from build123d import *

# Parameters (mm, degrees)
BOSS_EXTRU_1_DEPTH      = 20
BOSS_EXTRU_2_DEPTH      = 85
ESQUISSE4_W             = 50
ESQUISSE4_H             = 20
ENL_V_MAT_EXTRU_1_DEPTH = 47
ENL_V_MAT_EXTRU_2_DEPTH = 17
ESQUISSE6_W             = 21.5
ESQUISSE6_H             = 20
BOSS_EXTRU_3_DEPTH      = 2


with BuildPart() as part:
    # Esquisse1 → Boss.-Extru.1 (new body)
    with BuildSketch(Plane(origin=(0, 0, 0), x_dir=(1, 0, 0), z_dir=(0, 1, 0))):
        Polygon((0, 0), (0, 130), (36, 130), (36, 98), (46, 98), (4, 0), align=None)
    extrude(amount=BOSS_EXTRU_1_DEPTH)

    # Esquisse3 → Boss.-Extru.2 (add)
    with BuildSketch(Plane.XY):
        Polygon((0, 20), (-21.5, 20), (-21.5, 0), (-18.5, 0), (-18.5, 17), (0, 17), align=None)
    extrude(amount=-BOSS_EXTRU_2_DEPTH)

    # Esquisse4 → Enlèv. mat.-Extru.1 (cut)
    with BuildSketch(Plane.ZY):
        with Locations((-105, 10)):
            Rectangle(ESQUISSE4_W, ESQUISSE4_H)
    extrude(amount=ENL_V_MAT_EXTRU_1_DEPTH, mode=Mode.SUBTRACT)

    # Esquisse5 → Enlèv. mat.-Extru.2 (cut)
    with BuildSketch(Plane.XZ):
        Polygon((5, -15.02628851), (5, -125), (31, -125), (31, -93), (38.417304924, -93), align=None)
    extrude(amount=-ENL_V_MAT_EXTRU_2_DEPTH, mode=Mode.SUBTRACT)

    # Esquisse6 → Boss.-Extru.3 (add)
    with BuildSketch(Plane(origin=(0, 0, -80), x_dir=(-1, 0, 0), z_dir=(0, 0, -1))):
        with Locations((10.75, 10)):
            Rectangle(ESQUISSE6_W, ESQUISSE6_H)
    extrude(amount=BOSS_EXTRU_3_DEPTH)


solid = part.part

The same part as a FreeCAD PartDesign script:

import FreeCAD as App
import Part
import Sketcher

V = App.Vector
Q = App.Units.Quantity


def add_polygon(sketch, points):
    """Adds a closed chain of lines whose ends are joined by coincident constraints."""
    first, n = sketch.GeometryCount, len(points)
    for a, b in zip(points, points[1:] + points[:1]):
        sketch.addGeometry(Part.LineSegment(App.Vector(*a, 0), App.Vector(*b, 0)), False)
    for i in range(n):
        sketch.addConstraint(Sketcher.Constraint("Coincident", first + i, 2, first + (i + 1) % n, 1))

doc = App.newDocument("Part")
body = doc.addObject("PartDesign::Body", "Body")

sketch1 = doc.addObject("Sketcher::SketchObject", "Sketch")
body.addObject(sketch1)
sketch1.AttachmentSupport = (doc.XZ_Plane, [""])
sketch1.MapMode = "FlatFace"
add_polygon(sketch1, [(0, -130), (0, 0), (4, 0), (46, -98), (36, -98), (36, -130)])
sketch1.addConstraint(Sketcher.Constraint("Vertical", 0))
sketch1.addConstraint(Sketcher.Constraint("Horizontal", 1))
sketch1.addConstraint(Sketcher.Constraint("Horizontal", 3))
sketch1.addConstraint(Sketcher.Constraint("Vertical", 4))
sketch1.addConstraint(Sketcher.Constraint("Horizontal", 5))
sketch1.addConstraint(Sketcher.Constraint("Coincident", 0, 2, -1, 1))
sketch1.addConstraint(Sketcher.Constraint("DistanceX", 1, 1, 1, 2, Q("4 mm")))
sketch1.addConstraint(Sketcher.Constraint("DistanceX", 3, 2, 3, 1, Q("10 mm")))
sketch1.addConstraint(Sketcher.Constraint("DistanceX", 5, 2, 5, 1, Q("36 mm")))
sketch1.addConstraint(Sketcher.Constraint("DistanceY", 0, 1, 0, 2, Q("130 mm")))
sketch1.addConstraint(Sketcher.Constraint("DistanceY", 4, 2, 4, 1, Q("32 mm")))
pad1 = doc.addObject("PartDesign::Pad", "Pad")
body.addObject(pad1)
pad1.Profile = sketch1
pad1.Length = 20
pad1.Reversed = True

sketch2 = doc.addObject("Sketcher::SketchObject", "Sketch001")
body.addObject(sketch2)
sketch2.AttachmentSupport = (doc.XY_Plane, [""])
sketch2.MapMode = "FlatFace"
add_polygon(sketch2, [(0, 20), (-21.5, 20), (-21.5, 0), (-18.5, 0), (-18.5, 17), (0, 17)])
sketch2.addConstraint(Sketcher.Constraint("Horizontal", 0))
sketch2.addConstraint(Sketcher.Constraint("Vertical", 1))
sketch2.addConstraint(Sketcher.Constraint("Horizontal", 2))
sketch2.addConstraint(Sketcher.Constraint("Vertical", 3))
sketch2.addConstraint(Sketcher.Constraint("Horizontal", 4))
sketch2.addConstraint(Sketcher.Constraint("Vertical", 5))
sketch2.addConstraint(Sketcher.Constraint("PointOnObject", 1, 2, -1))
sketch2.addConstraint(Sketcher.Constraint("PointOnObject", 4, 2, -2))
sketch2.addConstraint(Sketcher.Constraint("Equal", 2, 5))
sketch2.addConstraint(Sketcher.Constraint("DistanceX", 2, 1, 2, 2, Q("3 mm")))
sketch2.addConstraint(Sketcher.Constraint("DistanceY", 1, 2, 1, 1, Q("20 mm")))
sketch2.addConstraint(Sketcher.Constraint("DistanceX", 0, 2, 0, 1, Q("21.5 mm")))
pad2 = doc.addObject("PartDesign::Pad", "Pad001")
body.addObject(pad2)
pad2.Profile = sketch2
pad2.Length = 85
pad2.Reversed = True

sketch3 = doc.addObject("Sketcher::SketchObject", "Sketch002")
body.addObject(sketch3)
sketch3.AttachmentSupport = (doc.YZ_Plane, [""])
sketch3.MapMode = "FlatFace"
add_polygon(sketch3, [(20, -130), (0, -130), (0, -80), (20, -80)])
sketch3.addConstraint(Sketcher.Constraint("Horizontal", 0))
sketch3.addConstraint(Sketcher.Constraint("Vertical", 1))
sketch3.addConstraint(Sketcher.Constraint("Horizontal", 2))
sketch3.addConstraint(Sketcher.Constraint("Vertical", 3))
sketch3.addConstraint(Sketcher.Constraint("PointOnObject", 0, 2, -2))
sketch3.addConstraint(Sketcher.Constraint("DistanceX", 0, 2, 0, 1, Q("20 mm")))
sketch3.addConstraint(Sketcher.Constraint("DistanceY", 1, 1, 1, 2, Q("50 mm")))
sketch3.addConstraint(Sketcher.Constraint("DistanceY", 0, 2, -1, 1, Q("130 mm")))
pocket1 = doc.addObject("PartDesign::Pocket", "Pocket")
body.addObject(pocket1)
pocket1.Profile = sketch3
pocket1.Length = 47

sketch4 = doc.addObject("Sketcher::SketchObject", "Sketch003")
body.addObject(sketch4)
sketch4.AttachmentSupport = (doc.XZ_Plane, [""])
sketch4.MapMode = "FlatFace"
add_polygon(sketch4, [(5, -15), (5, -125), (31, -125), (31, -93), (38, -93)])
sketch4.addConstraint(Sketcher.Constraint("Vertical", 0))
sketch4.addConstraint(Sketcher.Constraint("Horizontal", 1))
sketch4.addConstraint(Sketcher.Constraint("Vertical", 2))
sketch4.addConstraint(Sketcher.Constraint("Horizontal", 3))
sketch4.addConstraint(Sketcher.Constraint("DistanceX", 1, 1, 1, 2, Q("26 mm")))
sketch4.addConstraint(Sketcher.Constraint("DistanceY", 2, 1, 2, 2, Q("32 mm")))
sketch4.addConstraint(Sketcher.Constraint("DistanceX", -1, 1, 0, 2, Q("5 mm")))
sketch4.addConstraint(Sketcher.Constraint("DistanceY", 0, 2, -1, 1, Q("125 mm")))
sketch4.addConstraint(Sketcher.Constraint("DistanceY", 0, 2, 0, 1, Q("109.973711 mm")))
sketch4.addConstraint(Sketcher.Constraint("Distance", 4, Q("84.832871 mm")))
pocket2 = doc.addObject("PartDesign::Pocket", "Pocket001")
body.addObject(pocket2)
pocket2.Profile = sketch4
pocket2.Length = 17

sketch5 = doc.addObject("Sketcher::SketchObject", "Sketch004")
body.addObject(sketch5)
sketch5.AttachmentSupport = (doc.XY_Plane, [""])
sketch5.MapMode = "FlatFace"
sketch5.AttachmentOffset = App.Placement(V(0, 0, -80), App.Rotation())
add_polygon(sketch5, [(0, 20), (0, 0), (-22, 0), (-22, 20)])
sketch5.addConstraint(Sketcher.Constraint("Vertical", 0))
sketch5.addConstraint(Sketcher.Constraint("Horizontal", 1))
sketch5.addConstraint(Sketcher.Constraint("Vertical", 2))
sketch5.addConstraint(Sketcher.Constraint("Horizontal", 3))
sketch5.addConstraint(Sketcher.Constraint("Coincident", 0, 2, -1, 1))
sketch5.addConstraint(Sketcher.Constraint("DistanceY", 0, 2, 0, 1, Q("20 mm")))
sketch5.addConstraint(Sketcher.Constraint("DistanceX", 1, 2, 1, 1, Q("21.5 mm")))
pad3 = doc.addObject("PartDesign::Pad", "Pad002")
body.addObject(pad3)
pad3.Profile = sketch5
pad3.Length = 2
pad3.Reversed = True

doc.recompute()
